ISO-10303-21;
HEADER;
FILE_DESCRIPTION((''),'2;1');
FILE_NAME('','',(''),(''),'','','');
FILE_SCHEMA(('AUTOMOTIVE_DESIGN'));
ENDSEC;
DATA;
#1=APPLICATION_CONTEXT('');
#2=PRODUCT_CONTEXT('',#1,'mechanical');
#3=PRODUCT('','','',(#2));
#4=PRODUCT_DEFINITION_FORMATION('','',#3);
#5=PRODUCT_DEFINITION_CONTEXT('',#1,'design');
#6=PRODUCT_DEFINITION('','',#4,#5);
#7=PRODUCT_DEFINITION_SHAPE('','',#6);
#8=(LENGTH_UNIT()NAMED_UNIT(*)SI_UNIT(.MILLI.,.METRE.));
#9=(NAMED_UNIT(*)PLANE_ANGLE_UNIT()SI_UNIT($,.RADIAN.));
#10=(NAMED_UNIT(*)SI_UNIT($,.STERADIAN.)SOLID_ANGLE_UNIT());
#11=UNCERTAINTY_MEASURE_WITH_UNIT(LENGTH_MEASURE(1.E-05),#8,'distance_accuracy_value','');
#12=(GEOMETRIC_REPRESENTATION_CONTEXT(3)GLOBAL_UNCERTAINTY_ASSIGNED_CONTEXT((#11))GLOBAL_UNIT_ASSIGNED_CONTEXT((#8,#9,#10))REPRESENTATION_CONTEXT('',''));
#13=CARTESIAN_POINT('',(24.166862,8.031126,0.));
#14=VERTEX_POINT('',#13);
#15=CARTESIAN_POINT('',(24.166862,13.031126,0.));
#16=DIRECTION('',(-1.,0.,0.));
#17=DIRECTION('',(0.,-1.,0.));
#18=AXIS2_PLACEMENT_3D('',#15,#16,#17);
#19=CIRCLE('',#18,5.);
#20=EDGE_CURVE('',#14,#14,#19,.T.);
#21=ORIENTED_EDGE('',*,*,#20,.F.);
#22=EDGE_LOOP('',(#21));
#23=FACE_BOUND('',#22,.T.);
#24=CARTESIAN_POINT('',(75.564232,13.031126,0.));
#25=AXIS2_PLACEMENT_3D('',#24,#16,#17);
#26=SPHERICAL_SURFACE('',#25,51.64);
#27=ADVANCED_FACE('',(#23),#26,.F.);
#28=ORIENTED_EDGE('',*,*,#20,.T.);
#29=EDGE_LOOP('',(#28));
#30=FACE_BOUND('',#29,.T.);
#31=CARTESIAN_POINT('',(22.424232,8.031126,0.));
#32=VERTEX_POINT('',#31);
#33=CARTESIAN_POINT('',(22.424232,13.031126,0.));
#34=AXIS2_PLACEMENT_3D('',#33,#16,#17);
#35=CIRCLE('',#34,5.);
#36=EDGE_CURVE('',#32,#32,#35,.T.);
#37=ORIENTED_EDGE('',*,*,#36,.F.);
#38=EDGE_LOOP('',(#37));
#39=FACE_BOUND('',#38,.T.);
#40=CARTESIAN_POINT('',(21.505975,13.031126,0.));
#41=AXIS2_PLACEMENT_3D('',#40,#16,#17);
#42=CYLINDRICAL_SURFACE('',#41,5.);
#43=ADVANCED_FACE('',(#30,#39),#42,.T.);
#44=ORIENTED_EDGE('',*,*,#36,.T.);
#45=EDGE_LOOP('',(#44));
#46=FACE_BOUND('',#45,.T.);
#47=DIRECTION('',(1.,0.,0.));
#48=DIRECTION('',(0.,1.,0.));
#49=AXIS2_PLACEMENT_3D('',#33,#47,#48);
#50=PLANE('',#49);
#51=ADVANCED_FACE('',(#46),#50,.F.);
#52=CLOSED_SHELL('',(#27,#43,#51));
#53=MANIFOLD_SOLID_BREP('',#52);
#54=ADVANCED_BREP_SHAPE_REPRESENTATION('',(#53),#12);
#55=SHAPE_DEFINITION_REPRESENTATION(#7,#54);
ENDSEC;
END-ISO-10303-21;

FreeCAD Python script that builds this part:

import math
import FreeCAD as App
import Part
import Sketcher
from FreeCAD import Vector

doc = App.newDocument("Part")
params = doc.addObject("Spreadsheet::Sheet", "Params")
for row, (alias, value) in enumerate([
    ("sketch1_height", "5 mm"),
    ("sketch1_radius", "51.64 mm"),
    ("sketch1_width", "1.5 mm"),
    ("revolution_angle", "360 deg"),
], start=1):
    params.set(f"A{row}", alias)
    params.set(f"B{row}", "=" + value)
    params.setAlias(f"B{row}", alias)

body = doc.addObject("PartDesign::Body", "Body")

sketch1 = body.newObject("Sketcher::SketchObject", "Sketch")
sketch1.AttachmentSupport = (doc.getObject("XY_Plane"), [""])
sketch1.MapMode = "FlatFace"
sketch1.addGeometry(Part.LineSegment(Vector(22.4, 18, 0), Vector(22.4, 13, 0)), False)
sketch1.addGeometry(Part.LineSegment(Vector(22.4, 13, 0), Vector(23.9, 13, 0)), False)
sketch1.addGeometry(Part.ArcOfCircle(Part.Circle(Vector(75.6, 13, 0), Vector(0, 0, 1), 51.6), math.radians(174.44), math.radians(180)), False)
sketch1.addGeometry(Part.LineSegment(Vector(24.2, 18, 0), Vector(22.4, 18, 0)), False)
sketch1.addGeometry(Part.LineSegment(Vector(22.4, 13, 0), Vector(75.6, 13, 0)), True)
sketch1.addConstraint(Sketcher.Constraint("Coincident", 0, 2, 1, 1))
sketch1.addConstraint(Sketcher.Constraint("Coincident", 1, 2, 2, 2))
sketch1.addConstraint(Sketcher.Constraint("Coincident", 2, 1, 3, 1))
sketch1.addConstraint(Sketcher.Constraint("Coincident", 3, 2, 0, 1))
sketch1.addConstraint(Sketcher.Constraint("Vertical", 0))
sketch1.addConstraint(Sketcher.Constraint("Horizontal", 1))
sketch1.addConstraint(Sketcher.Constraint("Horizontal", 3))
sketch1.addConstraint(Sketcher.Constraint("Horizontal", 4))
sketch1.addConstraint(Sketcher.Constraint("Coincident", 4, 1, 0, 2))
sketch1.addConstraint(Sketcher.Constraint("Coincident", 4, 2, 2, 3))
sketch1.addConstraint(Sketcher.Constraint("DistanceY", 0, 2, 0, 1, 5.0))
sketch1.addConstraint(Sketcher.Constraint("Radius", 2, 51.64))
sketch1.addConstraint(Sketcher.Constraint("DistanceX", 1, 1, 1, 2, 1.5))
sketch1.addConstraint(Sketcher.Constraint("DistanceX", -1, 1, 2, 3, 75.564232))
sketch1.addConstraint(Sketcher.Constraint("DistanceY", -1, 1, 2, 3, 13.031126))
sketch1.setExpression("Constraints[10]", "Params.sketch1_height")
sketch1.setExpression("Constraints[11]", "Params.sketch1_radius")
sketch1.setExpression("Constraints[12]", "Params.sketch1_width")
revolution = body.newObject("PartDesign::Revolution", "Revolution")
revolution.Profile = sketch1
revolution.ReferenceAxis = (sketch1, ["Axis0"])
revolution.setExpression("Angle", "Params.revolution_angle")

doc.recompute()
